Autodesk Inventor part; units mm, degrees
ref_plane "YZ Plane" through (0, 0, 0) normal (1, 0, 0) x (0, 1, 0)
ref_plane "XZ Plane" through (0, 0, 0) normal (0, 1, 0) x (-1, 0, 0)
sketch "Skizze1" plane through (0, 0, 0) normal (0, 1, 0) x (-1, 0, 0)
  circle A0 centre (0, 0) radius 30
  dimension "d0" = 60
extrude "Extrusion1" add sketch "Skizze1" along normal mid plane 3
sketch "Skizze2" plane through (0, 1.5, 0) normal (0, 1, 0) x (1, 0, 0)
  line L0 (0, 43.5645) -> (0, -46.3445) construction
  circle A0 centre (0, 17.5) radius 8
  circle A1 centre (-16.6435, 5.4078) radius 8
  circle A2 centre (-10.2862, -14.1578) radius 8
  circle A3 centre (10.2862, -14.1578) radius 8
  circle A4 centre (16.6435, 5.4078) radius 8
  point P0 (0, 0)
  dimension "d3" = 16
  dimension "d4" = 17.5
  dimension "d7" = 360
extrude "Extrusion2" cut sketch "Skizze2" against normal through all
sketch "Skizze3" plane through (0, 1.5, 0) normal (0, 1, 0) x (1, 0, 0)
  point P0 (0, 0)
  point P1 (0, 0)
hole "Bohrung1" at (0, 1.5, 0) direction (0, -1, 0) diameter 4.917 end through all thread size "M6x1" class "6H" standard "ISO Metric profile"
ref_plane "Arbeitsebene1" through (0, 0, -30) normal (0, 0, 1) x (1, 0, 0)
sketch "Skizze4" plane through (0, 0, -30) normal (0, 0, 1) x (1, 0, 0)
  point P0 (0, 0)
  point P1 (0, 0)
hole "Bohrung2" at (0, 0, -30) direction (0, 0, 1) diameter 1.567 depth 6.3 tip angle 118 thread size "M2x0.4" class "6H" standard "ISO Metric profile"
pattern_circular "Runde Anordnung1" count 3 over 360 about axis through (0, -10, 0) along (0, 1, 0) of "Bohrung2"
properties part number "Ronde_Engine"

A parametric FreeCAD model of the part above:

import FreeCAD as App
import Part
import Sketcher
Q = App.Units.Quantity

doc = App.newDocument("Part")
body = doc.addObject("PartDesign::Body", "Body")

# Sketch on XZ plane
sketch1 = body.newObject("Sketcher::SketchObject", "Sketch")
sketch1.AttachmentSupport = (doc.getObject("XZ_Plane"), [""])
sketch1.MapMode = "FlatFace"
sketch1.addGeometry(Part.Circle(App.Vector(0, 0, 0), App.Vector(0, 0, 1), 30), False)
sketch1.addConstraint(Sketcher.Constraint("Coincident", 0, 3, -1, 1))
sketch1.addConstraint(Sketcher.Constraint("Diameter", 0, Q("60 mm")))
pad1 = body.newObject("PartDesign::Pad", "Pad")
pad1.Profile = sketch1
pad1.Length = 3
pad1.Midplane = True

# Sketch on XZ plane
sketch2 = body.newObject("Sketcher::SketchObject", "Sketch001")
sketch2.AttachmentSupport = (doc.getObject("XZ_Plane"), [""])
sketch2.MapMode = "FlatFace"
sketch2.AttachmentOffset = App.Placement(App.Vector(0, 0, -1.5), App.Rotation())
sketch2.addGeometry(Part.Circle(App.Vector(0, -18, 0), App.Vector(0, 0, 1), 8), False)
sketch2.addGeometry(Part.Circle(App.Vector(-17, -5, 0), App.Vector(0, 0, 1), 8), False)
sketch2.addGeometry(Part.Circle(App.Vector(-10, 14, 0), App.Vector(0, 0, 1), 8), False)
sketch2.addGeometry(Part.Circle(App.Vector(10, 14, 0), App.Vector(0, 0, 1), 8), False)
sketch2.addGeometry(Part.Circle(App.Vector(17, -5, 0), App.Vector(0, 0, 1), 8), False)
sketch2.addConstraint(Sketcher.Constraint("Equal", 0, 1))
sketch2.addConstraint(Sketcher.Constraint("Equal", 1, 2))
sketch2.addConstraint(Sketcher.Constraint("Equal", 2, 3))
sketch2.addConstraint(Sketcher.Constraint("Equal", 3, 4))
sketch2.addConstraint(Sketcher.Constraint("Symmetric", 2, 3, 3, 3, -2))
sketch2.addConstraint(Sketcher.Constraint("Symmetric", 1, 3, 4, 3, -2))
sketch2.addConstraint(Sketcher.Constraint("PointOnObject", 0, 3, -2))
sketch2.addConstraint(Sketcher.Constraint("Diameter", 0, Q("16 mm")))
sketch2.addConstraint(Sketcher.Constraint("DistanceY", 0, 3, -1, 1, Q("17.5 mm")))
sketch2.addConstraint(Sketcher.Constraint("DistanceX", 1, 3, 4, 3, Q("33.287 mm")))
sketch2.addConstraint(Sketcher.Constraint("DistanceY", 1, 3, -1, 1, Q("5.4078 mm")))
sketch2.addConstraint(Sketcher.Constraint("DistanceX", 2, 3, -1, 1, Q("10.2862 mm")))
sketch2.addConstraint(Sketcher.Constraint("DistanceY", -1, 1, 2, 3, Q("14.1578 mm")))
pocket1 = body.newObject("PartDesign::Pocket", "Pocket")
pocket1.Profile = sketch2
pocket1.Type = "ThroughAll"
pocket1.Reversed = True

# Sketch on XZ plane
sketch3 = body.newObject("Sketcher::SketchObject", "Sketch002")
sketch3.AttachmentSupport = (doc.getObject("XZ_Plane"), [""])
sketch3.MapMode = "FlatFace"
sketch3.AttachmentOffset = App.Placement(App.Vector(0, 0, -1.5), App.Rotation())
sketch3.addGeometry(Part.Circle(App.Vector(0, 0, 0), App.Vector(0, 0, 1), 2.5), False)
sketch3.addConstraint(Sketcher.Constraint("Coincident", 0, 3, -1, 1))
sketch3.addConstraint(Sketcher.Constraint("Diameter", 0, Q("4.917 mm")))
doc.recompute()
hole = body.newObject("PartDesign::Hole", "Hole")
hole.Profile = sketch3
hole.ThreadType = "None"
hole.Diameter = 4.917
hole.DepthType = "ThroughAll"
hole.Reversed = True

# Sketch on XY plane
sketch4 = body.newObject("Sketcher::SketchObject", "Sketch003")
sketch4.AttachmentSupport = (doc.getObject("XY_Plane"), [""])
sketch4.MapMode = "FlatFace"
sketch4.AttachmentOffset = App.Placement(App.Vector(0, 0, -30), App.Rotation())
sketch4.addGeometry(Part.Circle(App.Vector(0, 0, 0), App.Vector(0, 0, 1), 0.8), False)
sketch4.addConstraint(Sketcher.Constraint("Coincident", 0, 3, -1, 1))
sketch4.addConstraint(Sketcher.Constraint("Diameter", 0, Q("1.567 mm")))
doc.recompute()
hole2 = body.newObject("PartDesign::Hole", "Hole001")
hole2.Profile = sketch4
hole2.ThreadType = "None"
hole2.Diameter = 1.567
hole2.DepthType = "Dimension"
hole2.Depth = 6.3
hole2.DrillPoint = "Angled"
hole2.DrillPointAngle = 118
hole2.Reversed = True
doc.recompute()

polarpattern = body.newObject("PartDesign::PolarPattern", "PolarPattern")
polarpattern.Originals = [hole2]
polarpattern.Axis = (doc.getObject("Y_Axis"), [""])
polarpattern.Angle = 360
polarpattern.Occurrences = 3
body.Tip = polarpattern

doc.recompute()
